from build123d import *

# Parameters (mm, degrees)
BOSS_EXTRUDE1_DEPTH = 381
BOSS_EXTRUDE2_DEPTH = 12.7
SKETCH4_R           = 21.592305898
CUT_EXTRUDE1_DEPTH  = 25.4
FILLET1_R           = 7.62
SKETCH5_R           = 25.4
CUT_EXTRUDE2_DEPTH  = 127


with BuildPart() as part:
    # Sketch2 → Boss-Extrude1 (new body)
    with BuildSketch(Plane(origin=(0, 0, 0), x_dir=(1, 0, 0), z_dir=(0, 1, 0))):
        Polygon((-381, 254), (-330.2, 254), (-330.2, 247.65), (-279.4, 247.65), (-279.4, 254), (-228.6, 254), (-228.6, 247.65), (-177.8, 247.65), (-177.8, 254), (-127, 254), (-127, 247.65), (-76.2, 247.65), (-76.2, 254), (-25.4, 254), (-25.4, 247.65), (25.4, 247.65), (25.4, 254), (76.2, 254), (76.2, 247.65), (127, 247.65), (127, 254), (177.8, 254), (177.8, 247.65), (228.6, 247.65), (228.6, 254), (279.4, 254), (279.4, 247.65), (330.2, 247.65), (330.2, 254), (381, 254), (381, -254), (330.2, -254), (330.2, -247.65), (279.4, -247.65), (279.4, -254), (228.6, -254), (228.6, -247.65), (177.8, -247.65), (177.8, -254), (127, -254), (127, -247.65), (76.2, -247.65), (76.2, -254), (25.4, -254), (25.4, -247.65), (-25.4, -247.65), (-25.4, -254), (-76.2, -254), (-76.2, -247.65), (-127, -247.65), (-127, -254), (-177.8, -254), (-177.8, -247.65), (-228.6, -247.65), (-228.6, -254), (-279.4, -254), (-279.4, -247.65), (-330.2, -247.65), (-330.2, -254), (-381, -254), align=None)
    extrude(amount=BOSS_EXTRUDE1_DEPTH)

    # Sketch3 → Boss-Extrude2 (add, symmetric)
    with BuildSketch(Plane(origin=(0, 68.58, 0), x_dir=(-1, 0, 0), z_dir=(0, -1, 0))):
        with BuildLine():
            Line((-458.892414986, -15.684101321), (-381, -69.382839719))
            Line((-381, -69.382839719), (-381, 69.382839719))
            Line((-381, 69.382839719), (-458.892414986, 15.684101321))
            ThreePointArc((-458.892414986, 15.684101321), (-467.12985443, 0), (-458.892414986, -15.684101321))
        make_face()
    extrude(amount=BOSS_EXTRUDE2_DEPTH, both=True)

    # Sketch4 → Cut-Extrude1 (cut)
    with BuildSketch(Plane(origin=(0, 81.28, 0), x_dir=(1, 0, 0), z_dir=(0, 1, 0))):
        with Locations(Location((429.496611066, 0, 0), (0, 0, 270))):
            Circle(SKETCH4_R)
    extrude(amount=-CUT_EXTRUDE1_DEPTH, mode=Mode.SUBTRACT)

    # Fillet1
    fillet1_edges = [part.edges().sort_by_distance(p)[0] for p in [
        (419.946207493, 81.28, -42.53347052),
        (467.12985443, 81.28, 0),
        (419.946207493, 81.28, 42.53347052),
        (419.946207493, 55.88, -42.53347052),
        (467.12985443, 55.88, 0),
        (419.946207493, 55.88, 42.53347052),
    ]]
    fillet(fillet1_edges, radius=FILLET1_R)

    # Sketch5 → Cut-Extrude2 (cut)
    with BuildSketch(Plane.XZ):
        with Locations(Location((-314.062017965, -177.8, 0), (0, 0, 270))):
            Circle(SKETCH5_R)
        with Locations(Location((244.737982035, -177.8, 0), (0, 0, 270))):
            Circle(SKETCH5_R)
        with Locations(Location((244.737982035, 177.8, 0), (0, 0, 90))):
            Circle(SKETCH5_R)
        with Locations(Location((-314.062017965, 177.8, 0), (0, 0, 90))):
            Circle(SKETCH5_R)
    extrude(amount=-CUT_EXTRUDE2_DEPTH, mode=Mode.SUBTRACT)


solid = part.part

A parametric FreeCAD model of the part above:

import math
import FreeCAD as App
import Part
import Sketcher
Q = App.Units.Quantity


def edges_at(feature, points):
    """Names of the edges that pass closest to the given points."""
    edges = feature.Shape.Edges
    near = lambda p: min(range(len(edges)), key=lambda i: edges[i].distToShape(Part.Vertex(*p))[0])
    return sorted({f"Edge{near(p) + 1}" for p in points})


def add_polygon(sketch, points):
    """Adds a closed chain of lines whose ends are joined by coincident constraints."""
    first, n = sketch.GeometryCount, len(points)
    for a, b in zip(points, points[1:] + points[:1]):
        sketch.addGeometry(Part.LineSegment(App.Vector(*a, 0), App.Vector(*b, 0)), False)
    for i in range(n):
        sketch.addConstraint(Sketcher.Constraint("Coincident", first + i, 2, first + (i + 1) % n, 1))

doc = App.newDocument("Part")
body = doc.addObject("PartDesign::Body", "Body")

# Sketch on XZ plane
sketch1 = body.newObject("Sketcher::SketchObject", "Sketch")
sketch1.AttachmentSupport = (doc.getObject("XZ_Plane"), [""])
sketch1.MapMode = "FlatFace"
add_polygon(sketch1, [(-330.2, -254), (-381, -254), (-381, 254), (-330.2, 254), (-330.2, 247.65), (-279.4, 247.65), (-279.4, 254), (-228.6, 254), (-228.6, 247.65), (-177.8, 247.65), (-177.8, 254), (-127, 254), (-127, 247.65), (-76.2, 247.65), (-76.2, 254), (-25.4, 254), (-25.4, 247.65), (25.4, 247.65), (25.4, 254), (76.2, 254), (76.2, 247.65), (127, 247.65), (127, 254), (177.8, 254), (177.8, 247.65), (228.6, 247.65), (228.6, 254), (279.4, 254), (279.4, 247.65), (330.2, 247.65), (330.2, 254), (381, 254), (381, -254), (330.2, -254), (330.2, -247.65), (279.4, -247.65), (279.4, -254), (228.6, -254), (228.6, -247.65), (177.8, -247.65), (177.8, -254), (127, -254), (127, -247.65), (76.2, -247.65), (76.2, -254), (25.4, -254), (25.4, -247.65), (-25.4, -247.65), (-25.4, -254), (-76.2, -254), (-76.2, -247.65), (-127, -247.65), (-127, -254), (-177.8, -254), (-177.8, -247.65), (-228.6, -247.65), (-228.6, -254), (-279.4, -254), (-279.4, -247.65), (-330.2, -247.65)])  # lines 0-59
sketch1.addConstraint(Sketcher.Constraint("Horizontal", 0))
sketch1.addConstraint(Sketcher.Constraint("Vertical", 1))
sketch1.addConstraint(Sketcher.Constraint("Horizontal", 2))
sketch1.addConstraint(Sketcher.Constraint("Vertical", 3))
sketch1.addConstraint(Sketcher.Constraint("Horizontal", 4))
sketch1.addConstraint(Sketcher.Constraint("Vertical", 5))
sketch1.addConstraint(Sketcher.Constraint("Horizontal", 6))
sketch1.addConstraint(Sketcher.Constraint("Vertical", 7))
sketch1.addConstraint(Sketcher.Constraint("Horizontal", 8))
sketch1.addConstraint(Sketcher.Constraint("Vertical", 9))
sketch1.addConstraint(Sketcher.Constraint("Horizontal", 10))
sketch1.addConstraint(Sketcher.Constraint("Vertical", 11))
sketch1.addConstraint(Sketcher.Constraint("Horizontal", 12))
sketch1.addConstraint(Sketcher.Constraint("Vertical", 13))
sketch1.addConstraint(Sketcher.Constraint("Horizontal", 14))
sketch1.addConstraint(Sketcher.Constraint("Vertical", 15))
sketch1.addConstraint(Sketcher.Constraint("Horizontal", 16))
sketch1.addConstraint(Sketcher.Constraint("Vertical", 17))
sketch1.addConstraint(Sketcher.Constraint("Horizontal", 18))
sketch1.addConstraint(Sketcher.Constraint("Vertical", 19))
sketch1.addConstraint(Sketcher.Constraint("Horizontal", 20))
sketch1.addConstraint(Sketcher.Constraint("Vertical", 21))
sketch1.addConstraint(Sketcher.Constraint("Horizontal", 22))
sketch1.addConstraint(Sketcher.Constraint("Vertical", 23))
sketch1.addConstraint(Sketcher.Constraint("Horizontal", 24))
sketch1.addConstraint(Sketcher.Constraint("Vertical", 25))
sketch1.addConstraint(Sketcher.Constraint("Horizontal", 26))
sketch1.addConstraint(Sketcher.Constraint("Vertical", 27))
sketch1.addConstraint(Sketcher.Constraint("Horizontal", 28))
sketch1.addConstraint(Sketcher.Constraint("Vertical", 29))
sketch1.addConstraint(Sketcher.Constraint("Horizontal", 30))
sketch1.addConstraint(Sketcher.Constraint("Vertical", 31))
sketch1.addConstraint(Sketcher.Constraint("Horizontal", 32))
sketch1.addConstraint(Sketcher.Constraint("Vertical", 33))
sketch1.addConstraint(Sketcher.Constraint("Horizontal", 34))
sketch1.addConstraint(Sketcher.Constraint("Vertical", 35))
sketch1.addConstraint(Sketcher.Constraint("Horizontal", 36))
sketch1.addConstraint(Sketcher.Constraint("Vertical", 37))
sketch1.addConstraint(Sketcher.Constraint("Horizontal", 38))
sketch1.addConstraint(Sketcher.Constraint("Vertical", 39))
sketch1.addConstraint(Sketcher.Constraint("Horizontal", 40))
sketch1.addConstraint(Sketcher.Constraint("Vertical", 41))
sketch1.addConstraint(Sketcher.Constraint("Horizontal", 42))
sketch1.addConstraint(Sketcher.Constraint("Vertical", 43))
sketch1.addConstraint(Sketcher.Constraint("Horizontal", 44))
sketch1.addConstraint(Sketcher.Constraint("Vertical", 45))
sketch1.addConstraint(Sketcher.Constraint("Horizontal", 46))
sketch1.addConstraint(Sketcher.Constraint("Vertical", 47))
sketch1.addConstraint(Sketcher.Constraint("Horizontal", 48))
sketch1.addConstraint(Sketcher.Constraint("Vertical", 49))
sketch1.addConstraint(Sketcher.Constraint("Horizontal", 50))
sketch1.addConstraint(Sketcher.Constraint("Vertical", 51))
sketch1.addConstraint(Sketcher.Constraint("Horizontal", 52))
sketch1.addConstraint(Sketcher.Constraint("Vertical", 53))
sketch1.addConstraint(Sketcher.Constraint("Horizontal", 54))
sketch1.addConstraint(Sketcher.Constraint("Vertical", 55))
sketch1.addConstraint(Sketcher.Constraint("Horizontal", 56))
sketch1.addConstraint(Sketcher.Constraint("Vertical", 57))
sketch1.addConstraint(Sketcher.Constraint("Horizontal", 58))
sketch1.addConstraint(Sketcher.Constraint("Vertical", 59))
sketch1.addConstraint(Sketcher.Constraint("Symmetric", 0, 2, 30, 2, -1, 1))
sketch1.addConstraint(Sketcher.Constraint("Symmetric", 2, 2, 32, 2, -1, 1))
sketch1.addConstraint(Sketcher.Constraint("Symmetric", 4, 2, 34, 2, -1, 1))
sketch1.addConstraint(Sketcher.Constraint("Symmetric", 6, 2, 36, 2, -1, 1))
sketch1.addConstraint(Sketcher.Constraint("Symmetric", 8, 2, 38, 2, -1, 1))
sketch1.addConstraint(Sketcher.Constraint("Symmetric", 10, 2, 40, 2, -1, 1))
sketch1.addConstraint(Sketcher.Constraint("Symmetric", 12, 2, 42, 2, -1, 1))
sketch1.addConstraint(Sketcher.Constraint("Symmetric", 14, 2, 44, 2, -1, 1))
sketch1.addConstraint(Sketcher.Constraint("Symmetric", 16, 2, 46, 2, -1, 1))
sketch1.addConstraint(Sketcher.Constraint("Symmetric", 18, 2, 48, 2, -1, 1))
sketch1.addConstraint(Sketcher.Constraint("Symmetric", 20, 2, 50, 2, -1, 1))
sketch1.addConstraint(Sketcher.Constraint("Symmetric", 22, 2, 52, 2, -1, 1))
sketch1.addConstraint(Sketcher.Constraint("Symmetric", 24, 2, 54, 2, -1, 1))
sketch1.addConstraint(Sketcher.Constraint("Symmetric", 26, 2, 56, 2, -1, 1))
sketch1.addConstraint(Sketcher.Constraint("Symmetric", 28, 2, 58, 2, -1, 1))
sketch1.addConstraint(Sketcher.Constraint("Symmetric", 14, 2, 17, 2, -2))
sketch1.addConstraint(Sketcher.Constraint("Symmetric", 12, 2, 19, 2, -2))
sketch1.addConstraint(Sketcher.Constraint("Symmetric", 10, 2, 21, 2, -2))
sketch1.addConstraint(Sketcher.Constraint("Symmetric", 8, 2, 23, 2, -2))
sketch1.addConstraint(Sketcher.Constraint("Symmetric", 6, 2, 25, 2, -2))
sketch1.addConstraint(Sketcher.Constraint("Symmetric", 4, 2, 27, 2, -2))
sketch1.addConstraint(Sketcher.Constraint("Symmetric", 2, 2, 29, 2, -2))
sketch1.addConstraint(Sketcher.Constraint("Horizontal", 2, 2, 5, 2))
sketch1.addConstraint(Sketcher.Constraint("Horizontal", 4, 2, 7, 2))
sketch1.addConstraint(Sketcher.Constraint("Horizontal", 6, 2, 9, 2))
sketch1.addConstraint(Sketcher.Constraint("Horizontal", 8, 2, 11, 2))
sketch1.addConstraint(Sketcher.Constraint("Horizontal", 10, 2, 13, 2))
sketch1.addConstraint(Sketcher.Constraint("Horizontal", 12, 2, 15, 2))
sketch1.addConstraint(Sketcher.Constraint("Equal", 2, 4))
sketch1.addConstraint(Sketcher.Constraint("Equal", 4, 6))
sketch1.addConstraint(Sketcher.Constraint("Equal", 6, 8))
sketch1.addConstraint(Sketcher.Constraint("Equal", 8, 10))
sketch1.addConstraint(Sketcher.Constraint("Equal", 10, 12))
sketch1.addConstraint(Sketcher.Constraint("Equal", 12, 14))
sketch1.addConstraint(Sketcher.Constraint("Equal", 14, 16))
sketch1.addConstraint(Sketcher.Constraint("DistanceX", 0, 2, 0, 1, Q("2 in")))
sketch1.addConstraint(Sketcher.Constraint("DistanceY", 1, 1, 1, 2, Q("20 in")))
sketch1.addConstraint(Sketcher.Constraint("DistanceY", 3, 2, 3, 1, Q("0.25 in")))
pad1 = body.newObject("PartDesign::Pad", "Pad")
pad1.Profile = sketch1
pad1.Length = Q("15 in")
pad1.Reversed = True

# Sketch on XZ plane
sketch2 = body.newObject("Sketcher::SketchObject", "Sketch001")
sketch2.AttachmentSupport = (doc.getObject("XZ_Plane"), [""])
sketch2.MapMode = "FlatFace"
sketch2.AttachmentOffset = App.Placement(App.Vector(0, 0, -2.7 * 25.4), App.Rotation())
sketch2.addGeometry(Part.LineSegment(App.Vector(458.892415, 15.684101, 0), App.Vector(381, 69.38284, 0)), False)
sketch2.addGeometry(Part.LineSegment(App.Vector(381, 69.38284, 0), App.Vector(381, -69.38284, 0)), False)
sketch2.addGeometry(Part.LineSegment(App.Vector(381, -69.38284, 0), App.Vector(458.892415, -15.684101, 0)), False)
sketch2.addGeometry(Part.ArcOfCircle(Part.Circle(App.Vector(448.079854, 0, 0), App.Vector(0, 0, 1), 19.05), math.radians(-55.417766), math.radians(55.417766)), False)
sketch2.addConstraint(Sketcher.Constraint("Coincident", 0, 2, 1, 1))
sketch2.addConstraint(Sketcher.Constraint("Coincident", 1, 2, 2, 1))
sketch2.addConstraint(Sketcher.Constraint("Tangent", 2, 2, 3, 1))
sketch2.addConstraint(Sketcher.Constraint("Tangent", 3, 2, 0, 1))
sketch2.addConstraint(Sketcher.Constraint("Vertical", 1))
sketch2.addConstraint(Sketcher.Constraint("Symmetric", 2, 2, 3, 2, -1))
sketch2.addConstraint(Sketcher.Constraint("Radius", 3, Q("0.75 in")))
sketch2.addConstraint(Sketcher.Constraint("DistanceX", -1, 1, 0, 2, Q("15 in")))
sketch2.addConstraint(Sketcher.Constraint("DistanceY", 1, 2, 1, 1, Q("138.765679 mm")))
sketch2.addConstraint(Sketcher.Constraint("DistanceY", 2, 2, -1, 1, Q("15.684101 mm")))
pad2 = body.newObject("PartDesign::Pad", "Pad001")
pad2.Profile = sketch2
pad2.Length = Q("1 in")
pad2.Midplane = True

# Sketch on XZ plane
sketch3 = body.newObject("Sketcher::SketchObject", "Sketch002")
sketch3.AttachmentSupport = (doc.getObject("XZ_Plane"), [""])
sketch3.MapMode = "FlatFace"
sketch3.AttachmentOffset = App.Placement(App.Vector(0, 0, -3.2 * 25.4), App.Rotation())
sketch3.addGeometry(Part.Circle(App.Vector(429.496611, 0, 0), App.Vector(0, 0, 1), 21.592306), False)
sketch3.addConstraint(Sketcher.Constraint("PointOnObject", 0, 3, -1))
sketch3.addConstraint(Sketcher.Constraint("Diameter", 0, Q("43.184612 mm")))
sketch3.addConstraint(Sketcher.Constraint("DistanceX", -1, 1, 0, 3, Q("429.496611 mm")))
pocket1 = body.newObject("PartDesign::Pocket", "Pocket")
pocket1.Profile = sketch3
pocket1.Length = Q("1 in")
pocket1.Reversed = True
doc.recompute()

fillet = body.newObject("PartDesign::Fillet", "Fillet")
fillet.Base = (pocket1, edges_at(pocket1, [
    (419.946, 81.28, -42.533),
    (467.13, 81.28, 0),
    (419.946, 81.28, 42.533),
    (419.946, 55.88, -42.533),
    (467.13, 55.88, 0),
    (419.946, 55.88, 42.533),
]))
fillet.Radius = Q("0.3 in")

# Sketch on XZ plane
sketch4 = body.newObject("Sketcher::SketchObject", "Sketch003")
sketch4.AttachmentSupport = (doc.getObject("XZ_Plane"), [""])
sketch4.MapMode = "FlatFace"
sketch4.addGeometry(Part.Circle(App.Vector(-314.062018, -177.8, 0), App.Vector(0, 0, 1), 25.4), False)
sketch4.addGeometry(Part.Circle(App.Vector(244.737982, -177.8, 0), App.Vector(0, 0, 1), 25.4), False)
sketch4.addGeometry(Part.Circle(App.Vector(244.737982, 177.8, 0), App.Vector(0, 0, 1), 25.4), False)
sketch4.addGeometry(Part.Circle(App.Vector(-314.062018, 177.8, 0), App.Vector(0, 0, 1), 25.4), False)
sketch4.addConstraint(Sketcher.Constraint("Equal", 0, 1))
sketch4.addConstraint(Sketcher.Constraint("Equal", 1, 2))
sketch4.addConstraint(Sketcher.Constraint("Equal", 2, 3))
sketch4.addConstraint(Sketcher.Constraint("Symmetric", 1, 3, 2, 3, -1))
sketch4.addConstraint(Sketcher.Constraint("Symmetric", 0, 3, 3, 3, -1))
sketch4.addConstraint(Sketcher.Constraint("Horizontal", 0, 3, 1, 3))
sketch4.addConstraint(Sketcher.Constraint("Diameter", 0, Q("2 in")))
sketch4.addConstraint(Sketcher.Constraint("DistanceY", 0, 3, -1, 1, Q("7 in")))
sketch4.addConstraint(Sketcher.Constraint("DistanceX", 0, 3, 1, 3, Q("22 in")))
sketch4.addConstraint(Sketcher.Constraint("DistanceX", 0, 3, -1, 1, Q("314.062018 mm")))
pocket2 = body.newObject("PartDesign::Pocket", "Pocket001")
pocket2.Profile = sketch4
pocket2.Length = Q("5 in")

doc.recompute()
